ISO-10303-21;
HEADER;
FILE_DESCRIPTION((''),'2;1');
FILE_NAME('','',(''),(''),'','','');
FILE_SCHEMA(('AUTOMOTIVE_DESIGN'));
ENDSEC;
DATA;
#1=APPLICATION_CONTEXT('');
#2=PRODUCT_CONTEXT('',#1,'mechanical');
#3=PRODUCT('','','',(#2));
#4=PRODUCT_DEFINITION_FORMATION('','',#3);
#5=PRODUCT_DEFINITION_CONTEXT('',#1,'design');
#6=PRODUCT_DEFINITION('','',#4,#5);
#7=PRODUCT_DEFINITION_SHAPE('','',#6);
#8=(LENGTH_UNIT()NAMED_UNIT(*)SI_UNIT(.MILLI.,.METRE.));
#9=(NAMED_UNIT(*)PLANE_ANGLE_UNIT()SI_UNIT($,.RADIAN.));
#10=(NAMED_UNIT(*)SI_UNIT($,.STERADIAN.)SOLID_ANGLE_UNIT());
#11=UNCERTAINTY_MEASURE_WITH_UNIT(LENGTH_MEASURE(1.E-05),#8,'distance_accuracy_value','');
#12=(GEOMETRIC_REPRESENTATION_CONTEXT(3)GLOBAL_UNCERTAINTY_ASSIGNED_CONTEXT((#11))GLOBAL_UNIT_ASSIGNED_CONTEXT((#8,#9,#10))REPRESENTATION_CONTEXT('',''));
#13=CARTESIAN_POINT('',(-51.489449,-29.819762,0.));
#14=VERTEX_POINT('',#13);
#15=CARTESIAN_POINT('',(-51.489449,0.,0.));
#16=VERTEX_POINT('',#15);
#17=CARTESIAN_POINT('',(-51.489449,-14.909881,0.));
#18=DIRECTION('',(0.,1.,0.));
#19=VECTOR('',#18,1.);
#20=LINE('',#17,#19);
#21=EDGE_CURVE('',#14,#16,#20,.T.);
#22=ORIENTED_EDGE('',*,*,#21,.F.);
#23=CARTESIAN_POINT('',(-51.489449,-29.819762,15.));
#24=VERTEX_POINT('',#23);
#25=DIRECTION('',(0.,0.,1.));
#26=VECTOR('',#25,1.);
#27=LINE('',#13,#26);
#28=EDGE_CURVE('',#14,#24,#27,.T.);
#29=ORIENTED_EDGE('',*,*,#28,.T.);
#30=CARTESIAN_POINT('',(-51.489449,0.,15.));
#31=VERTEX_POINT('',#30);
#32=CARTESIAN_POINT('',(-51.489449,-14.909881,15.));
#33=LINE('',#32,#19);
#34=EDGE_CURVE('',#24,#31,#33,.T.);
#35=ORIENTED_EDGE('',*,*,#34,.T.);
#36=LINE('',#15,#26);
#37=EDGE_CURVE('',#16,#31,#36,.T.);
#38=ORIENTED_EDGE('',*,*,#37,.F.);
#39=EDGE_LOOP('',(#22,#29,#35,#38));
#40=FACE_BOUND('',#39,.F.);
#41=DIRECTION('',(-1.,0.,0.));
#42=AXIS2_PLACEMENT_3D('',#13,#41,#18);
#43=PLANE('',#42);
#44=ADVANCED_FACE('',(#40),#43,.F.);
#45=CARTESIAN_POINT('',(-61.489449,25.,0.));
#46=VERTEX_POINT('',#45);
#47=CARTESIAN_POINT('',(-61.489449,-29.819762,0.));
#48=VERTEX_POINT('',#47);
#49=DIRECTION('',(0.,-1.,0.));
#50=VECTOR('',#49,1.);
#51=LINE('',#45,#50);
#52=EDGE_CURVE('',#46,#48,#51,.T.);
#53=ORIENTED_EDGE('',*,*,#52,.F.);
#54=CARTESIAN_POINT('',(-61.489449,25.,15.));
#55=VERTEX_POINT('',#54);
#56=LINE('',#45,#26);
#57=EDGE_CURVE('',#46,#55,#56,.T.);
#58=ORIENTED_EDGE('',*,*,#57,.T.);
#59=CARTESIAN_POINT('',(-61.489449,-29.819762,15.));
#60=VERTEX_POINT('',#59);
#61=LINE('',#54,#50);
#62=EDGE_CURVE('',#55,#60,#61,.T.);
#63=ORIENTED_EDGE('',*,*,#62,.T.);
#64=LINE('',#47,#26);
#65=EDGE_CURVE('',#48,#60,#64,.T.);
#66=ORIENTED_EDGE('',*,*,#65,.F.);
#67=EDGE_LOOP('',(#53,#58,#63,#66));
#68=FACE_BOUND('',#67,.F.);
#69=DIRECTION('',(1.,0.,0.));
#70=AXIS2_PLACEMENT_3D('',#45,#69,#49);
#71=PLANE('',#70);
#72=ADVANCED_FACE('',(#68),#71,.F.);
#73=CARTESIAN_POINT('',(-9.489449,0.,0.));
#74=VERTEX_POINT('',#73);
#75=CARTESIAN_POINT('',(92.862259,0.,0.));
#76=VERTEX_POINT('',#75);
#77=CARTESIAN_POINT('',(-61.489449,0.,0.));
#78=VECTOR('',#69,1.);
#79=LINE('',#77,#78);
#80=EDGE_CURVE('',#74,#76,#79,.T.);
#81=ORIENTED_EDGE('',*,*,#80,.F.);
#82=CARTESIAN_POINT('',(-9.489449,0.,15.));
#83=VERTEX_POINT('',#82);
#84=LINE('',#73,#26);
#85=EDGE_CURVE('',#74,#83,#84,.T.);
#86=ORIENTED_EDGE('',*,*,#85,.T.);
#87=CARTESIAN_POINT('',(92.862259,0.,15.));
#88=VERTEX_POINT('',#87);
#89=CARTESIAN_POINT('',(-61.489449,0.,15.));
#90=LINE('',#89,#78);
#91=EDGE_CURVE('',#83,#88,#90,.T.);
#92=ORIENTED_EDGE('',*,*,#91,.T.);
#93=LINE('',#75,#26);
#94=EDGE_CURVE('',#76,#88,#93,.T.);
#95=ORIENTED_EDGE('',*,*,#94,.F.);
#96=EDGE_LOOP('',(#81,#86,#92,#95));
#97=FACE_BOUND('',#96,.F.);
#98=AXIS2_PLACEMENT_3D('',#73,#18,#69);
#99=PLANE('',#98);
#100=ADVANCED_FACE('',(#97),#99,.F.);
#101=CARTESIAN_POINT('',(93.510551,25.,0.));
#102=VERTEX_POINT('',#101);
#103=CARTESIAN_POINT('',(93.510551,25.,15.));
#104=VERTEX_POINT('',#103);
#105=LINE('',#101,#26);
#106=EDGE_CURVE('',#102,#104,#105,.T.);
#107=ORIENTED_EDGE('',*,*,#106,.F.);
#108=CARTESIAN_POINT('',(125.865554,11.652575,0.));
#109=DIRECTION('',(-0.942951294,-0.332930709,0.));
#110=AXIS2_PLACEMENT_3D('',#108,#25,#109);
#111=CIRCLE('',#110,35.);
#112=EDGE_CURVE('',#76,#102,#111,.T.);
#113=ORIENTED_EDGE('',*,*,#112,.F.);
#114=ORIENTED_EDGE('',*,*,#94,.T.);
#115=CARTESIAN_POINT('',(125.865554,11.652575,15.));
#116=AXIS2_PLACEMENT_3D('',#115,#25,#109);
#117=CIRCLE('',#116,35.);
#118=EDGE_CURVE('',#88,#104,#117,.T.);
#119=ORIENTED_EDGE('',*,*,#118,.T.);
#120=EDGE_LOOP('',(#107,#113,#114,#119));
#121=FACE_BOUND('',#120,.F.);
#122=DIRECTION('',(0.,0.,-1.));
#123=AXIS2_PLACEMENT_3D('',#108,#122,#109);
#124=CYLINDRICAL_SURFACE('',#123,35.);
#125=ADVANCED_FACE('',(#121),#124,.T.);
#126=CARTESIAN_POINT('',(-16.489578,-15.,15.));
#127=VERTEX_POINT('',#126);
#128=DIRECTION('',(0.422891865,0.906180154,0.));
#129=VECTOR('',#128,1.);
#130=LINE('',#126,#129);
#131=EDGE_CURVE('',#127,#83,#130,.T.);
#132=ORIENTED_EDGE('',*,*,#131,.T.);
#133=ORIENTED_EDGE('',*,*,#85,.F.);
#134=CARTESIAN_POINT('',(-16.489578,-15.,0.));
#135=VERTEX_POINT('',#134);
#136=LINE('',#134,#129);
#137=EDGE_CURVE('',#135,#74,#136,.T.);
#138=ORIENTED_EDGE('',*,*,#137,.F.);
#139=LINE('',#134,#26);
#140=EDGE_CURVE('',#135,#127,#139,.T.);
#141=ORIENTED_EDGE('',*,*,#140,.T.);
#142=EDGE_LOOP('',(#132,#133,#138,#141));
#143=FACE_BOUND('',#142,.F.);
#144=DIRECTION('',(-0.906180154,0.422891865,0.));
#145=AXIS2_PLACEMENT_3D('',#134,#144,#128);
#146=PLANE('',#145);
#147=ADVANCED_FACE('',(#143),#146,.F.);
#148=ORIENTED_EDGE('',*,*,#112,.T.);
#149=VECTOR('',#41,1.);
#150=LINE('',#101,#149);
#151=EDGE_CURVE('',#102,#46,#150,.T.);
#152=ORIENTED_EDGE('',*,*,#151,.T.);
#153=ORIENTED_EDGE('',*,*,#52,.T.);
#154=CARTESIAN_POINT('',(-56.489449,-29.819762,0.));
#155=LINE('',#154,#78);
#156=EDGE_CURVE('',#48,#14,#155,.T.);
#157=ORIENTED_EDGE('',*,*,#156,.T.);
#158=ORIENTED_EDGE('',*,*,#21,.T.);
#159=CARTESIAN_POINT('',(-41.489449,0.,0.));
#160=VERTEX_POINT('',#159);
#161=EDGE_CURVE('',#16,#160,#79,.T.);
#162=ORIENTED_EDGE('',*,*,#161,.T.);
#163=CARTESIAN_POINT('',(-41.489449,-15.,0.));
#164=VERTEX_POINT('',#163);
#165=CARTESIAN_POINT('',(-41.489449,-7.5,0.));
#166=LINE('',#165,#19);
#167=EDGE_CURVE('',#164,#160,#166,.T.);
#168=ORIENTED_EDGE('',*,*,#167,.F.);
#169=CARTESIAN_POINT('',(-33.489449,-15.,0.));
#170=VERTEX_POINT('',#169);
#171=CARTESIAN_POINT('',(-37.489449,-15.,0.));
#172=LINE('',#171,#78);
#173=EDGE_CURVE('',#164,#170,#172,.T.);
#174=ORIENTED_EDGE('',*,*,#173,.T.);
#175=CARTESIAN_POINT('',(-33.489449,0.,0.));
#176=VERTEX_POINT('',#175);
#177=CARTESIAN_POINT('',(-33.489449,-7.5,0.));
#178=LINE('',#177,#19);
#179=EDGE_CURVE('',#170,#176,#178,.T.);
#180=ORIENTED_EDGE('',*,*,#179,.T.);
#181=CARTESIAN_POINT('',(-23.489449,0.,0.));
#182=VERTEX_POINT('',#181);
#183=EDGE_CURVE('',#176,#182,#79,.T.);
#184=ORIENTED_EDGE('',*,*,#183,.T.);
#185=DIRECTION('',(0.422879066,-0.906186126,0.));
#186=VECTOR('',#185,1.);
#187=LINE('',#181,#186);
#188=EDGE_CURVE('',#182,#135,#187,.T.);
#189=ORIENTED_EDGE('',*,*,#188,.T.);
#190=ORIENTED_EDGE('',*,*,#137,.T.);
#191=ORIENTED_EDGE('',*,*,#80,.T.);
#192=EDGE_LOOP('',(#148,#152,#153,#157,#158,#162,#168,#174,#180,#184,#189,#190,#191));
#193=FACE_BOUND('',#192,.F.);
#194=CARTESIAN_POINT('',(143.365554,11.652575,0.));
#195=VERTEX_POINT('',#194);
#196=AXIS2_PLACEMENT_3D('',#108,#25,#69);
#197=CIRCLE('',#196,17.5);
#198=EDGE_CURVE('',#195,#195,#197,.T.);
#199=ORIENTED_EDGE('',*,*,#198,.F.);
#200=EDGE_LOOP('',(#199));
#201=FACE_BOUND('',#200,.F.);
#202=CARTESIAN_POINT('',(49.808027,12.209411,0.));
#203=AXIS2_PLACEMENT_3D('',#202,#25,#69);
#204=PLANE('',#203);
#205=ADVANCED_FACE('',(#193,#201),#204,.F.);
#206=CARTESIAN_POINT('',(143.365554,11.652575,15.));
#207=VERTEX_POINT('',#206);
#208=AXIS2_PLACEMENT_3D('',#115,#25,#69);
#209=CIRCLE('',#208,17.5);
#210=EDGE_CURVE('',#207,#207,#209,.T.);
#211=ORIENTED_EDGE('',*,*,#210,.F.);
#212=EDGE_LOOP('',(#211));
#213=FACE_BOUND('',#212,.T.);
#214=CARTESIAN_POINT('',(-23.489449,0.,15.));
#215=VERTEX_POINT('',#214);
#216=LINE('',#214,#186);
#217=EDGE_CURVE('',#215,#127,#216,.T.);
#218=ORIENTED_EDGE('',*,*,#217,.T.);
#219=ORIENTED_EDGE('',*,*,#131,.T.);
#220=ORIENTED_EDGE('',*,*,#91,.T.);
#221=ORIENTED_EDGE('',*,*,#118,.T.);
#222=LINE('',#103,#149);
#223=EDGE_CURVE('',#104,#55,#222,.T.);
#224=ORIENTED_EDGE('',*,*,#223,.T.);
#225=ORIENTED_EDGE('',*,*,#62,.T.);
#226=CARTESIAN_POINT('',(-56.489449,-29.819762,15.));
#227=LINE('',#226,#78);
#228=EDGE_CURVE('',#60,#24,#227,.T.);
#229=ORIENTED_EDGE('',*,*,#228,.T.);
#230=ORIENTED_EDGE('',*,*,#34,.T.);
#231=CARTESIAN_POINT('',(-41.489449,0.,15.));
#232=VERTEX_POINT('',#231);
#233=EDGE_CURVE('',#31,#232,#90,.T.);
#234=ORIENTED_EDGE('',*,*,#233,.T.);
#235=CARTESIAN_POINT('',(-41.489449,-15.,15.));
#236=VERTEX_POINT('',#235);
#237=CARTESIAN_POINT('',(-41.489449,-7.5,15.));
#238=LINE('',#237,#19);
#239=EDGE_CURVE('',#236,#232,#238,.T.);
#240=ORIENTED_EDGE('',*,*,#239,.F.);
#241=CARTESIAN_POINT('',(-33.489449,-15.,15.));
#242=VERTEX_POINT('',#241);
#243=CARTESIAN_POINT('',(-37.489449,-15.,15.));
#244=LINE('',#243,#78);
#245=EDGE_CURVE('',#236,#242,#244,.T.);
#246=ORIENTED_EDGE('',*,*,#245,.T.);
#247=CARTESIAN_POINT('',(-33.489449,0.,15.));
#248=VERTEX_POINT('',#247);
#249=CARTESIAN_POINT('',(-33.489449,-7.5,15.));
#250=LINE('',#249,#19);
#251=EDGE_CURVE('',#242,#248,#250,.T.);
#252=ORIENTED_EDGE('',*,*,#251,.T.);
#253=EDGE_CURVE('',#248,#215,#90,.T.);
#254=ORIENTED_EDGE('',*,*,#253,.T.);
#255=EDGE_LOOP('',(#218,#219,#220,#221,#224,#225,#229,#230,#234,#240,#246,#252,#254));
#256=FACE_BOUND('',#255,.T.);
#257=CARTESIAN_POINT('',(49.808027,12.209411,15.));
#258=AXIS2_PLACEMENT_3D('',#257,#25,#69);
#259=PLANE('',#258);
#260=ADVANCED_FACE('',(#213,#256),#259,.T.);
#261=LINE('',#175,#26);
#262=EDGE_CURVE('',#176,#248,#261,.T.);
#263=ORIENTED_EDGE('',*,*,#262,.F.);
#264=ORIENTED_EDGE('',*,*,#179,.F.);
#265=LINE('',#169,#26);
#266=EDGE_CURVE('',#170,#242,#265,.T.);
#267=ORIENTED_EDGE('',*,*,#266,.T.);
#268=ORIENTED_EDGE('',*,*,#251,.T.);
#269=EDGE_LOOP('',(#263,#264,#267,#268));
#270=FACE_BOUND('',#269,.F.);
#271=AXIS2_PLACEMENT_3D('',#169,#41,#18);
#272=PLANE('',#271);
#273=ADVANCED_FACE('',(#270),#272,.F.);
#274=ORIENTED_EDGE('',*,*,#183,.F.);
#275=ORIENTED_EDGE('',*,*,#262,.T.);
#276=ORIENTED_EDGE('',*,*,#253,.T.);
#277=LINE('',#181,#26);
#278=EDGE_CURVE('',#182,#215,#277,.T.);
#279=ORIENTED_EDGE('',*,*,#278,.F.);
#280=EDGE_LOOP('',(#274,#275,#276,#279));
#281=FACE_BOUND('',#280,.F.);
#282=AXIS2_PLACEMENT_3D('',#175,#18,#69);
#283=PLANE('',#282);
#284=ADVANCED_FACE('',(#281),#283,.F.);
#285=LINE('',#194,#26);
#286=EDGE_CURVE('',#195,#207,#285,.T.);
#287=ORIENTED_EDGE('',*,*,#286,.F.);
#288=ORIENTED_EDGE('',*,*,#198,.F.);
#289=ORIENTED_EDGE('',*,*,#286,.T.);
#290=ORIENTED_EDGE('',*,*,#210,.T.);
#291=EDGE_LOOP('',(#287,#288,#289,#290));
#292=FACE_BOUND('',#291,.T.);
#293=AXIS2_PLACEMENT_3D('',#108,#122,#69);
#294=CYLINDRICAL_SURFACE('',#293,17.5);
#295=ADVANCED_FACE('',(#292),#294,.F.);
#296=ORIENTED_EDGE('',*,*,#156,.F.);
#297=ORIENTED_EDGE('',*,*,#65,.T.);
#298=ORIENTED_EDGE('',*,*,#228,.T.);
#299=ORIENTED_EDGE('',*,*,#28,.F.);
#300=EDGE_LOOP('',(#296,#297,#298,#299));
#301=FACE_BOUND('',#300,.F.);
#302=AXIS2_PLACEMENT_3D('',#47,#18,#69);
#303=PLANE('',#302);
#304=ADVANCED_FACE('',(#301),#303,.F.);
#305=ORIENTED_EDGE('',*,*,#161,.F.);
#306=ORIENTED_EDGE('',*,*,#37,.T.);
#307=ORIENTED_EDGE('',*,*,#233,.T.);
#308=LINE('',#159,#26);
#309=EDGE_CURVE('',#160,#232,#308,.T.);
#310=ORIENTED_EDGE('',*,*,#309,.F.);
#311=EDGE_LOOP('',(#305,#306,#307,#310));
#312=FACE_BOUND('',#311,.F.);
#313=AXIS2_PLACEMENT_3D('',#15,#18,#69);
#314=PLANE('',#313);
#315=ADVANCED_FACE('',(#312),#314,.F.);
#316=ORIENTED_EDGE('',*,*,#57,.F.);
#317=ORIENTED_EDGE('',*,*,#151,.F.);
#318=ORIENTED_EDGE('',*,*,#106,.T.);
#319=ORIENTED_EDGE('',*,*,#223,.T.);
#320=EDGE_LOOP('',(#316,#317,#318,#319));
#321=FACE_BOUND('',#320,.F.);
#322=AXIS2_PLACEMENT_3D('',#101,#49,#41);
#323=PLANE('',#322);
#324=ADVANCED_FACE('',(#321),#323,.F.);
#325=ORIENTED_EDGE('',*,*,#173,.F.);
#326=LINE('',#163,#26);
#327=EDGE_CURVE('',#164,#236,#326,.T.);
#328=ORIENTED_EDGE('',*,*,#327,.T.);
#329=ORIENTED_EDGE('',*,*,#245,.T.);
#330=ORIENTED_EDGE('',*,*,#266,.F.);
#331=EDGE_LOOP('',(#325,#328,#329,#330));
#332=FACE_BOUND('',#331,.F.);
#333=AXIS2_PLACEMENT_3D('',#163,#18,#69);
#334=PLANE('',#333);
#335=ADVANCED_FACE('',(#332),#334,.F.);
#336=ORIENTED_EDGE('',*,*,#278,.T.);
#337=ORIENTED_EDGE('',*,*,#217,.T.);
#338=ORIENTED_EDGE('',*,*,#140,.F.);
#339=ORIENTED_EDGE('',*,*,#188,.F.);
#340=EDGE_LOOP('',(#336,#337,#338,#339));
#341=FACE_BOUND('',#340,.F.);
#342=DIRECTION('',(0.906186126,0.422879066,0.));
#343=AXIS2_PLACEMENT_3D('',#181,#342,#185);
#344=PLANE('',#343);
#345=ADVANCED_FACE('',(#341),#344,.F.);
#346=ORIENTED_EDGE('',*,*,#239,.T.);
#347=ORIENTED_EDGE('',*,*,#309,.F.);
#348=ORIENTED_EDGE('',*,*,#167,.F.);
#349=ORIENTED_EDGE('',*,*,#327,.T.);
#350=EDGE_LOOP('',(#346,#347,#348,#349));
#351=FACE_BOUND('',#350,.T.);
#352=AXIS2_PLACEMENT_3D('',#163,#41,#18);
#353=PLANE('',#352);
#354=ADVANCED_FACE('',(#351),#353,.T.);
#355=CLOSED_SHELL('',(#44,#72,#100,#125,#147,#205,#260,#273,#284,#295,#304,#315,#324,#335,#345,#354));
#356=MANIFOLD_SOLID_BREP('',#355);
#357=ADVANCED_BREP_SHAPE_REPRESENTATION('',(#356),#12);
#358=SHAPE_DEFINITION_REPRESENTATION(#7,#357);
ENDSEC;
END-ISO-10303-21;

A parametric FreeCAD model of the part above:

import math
import FreeCAD as App
import Part
import Sketcher

V = App.Vector
Q = App.Units.Quantity

doc = App.newDocument("Part")
body = doc.addObject("PartDesign::Body", "Body")

# Sketch on XY plane
sketch1 = body.newObject("Sketcher::SketchObject", "Sketch")
sketch1.AttachmentSupport = (doc.getObject("XY_Plane"), [""])
sketch1.MapMode = "FlatFace"
sketch1.addGeometry(Part.LineSegment(V(94, 25, 0), V(-61, 25, 0)), False)
sketch1.addGeometry(Part.LineSegment(V(-61, 25, 0), V(-61, -30, 0)), False)
sketch1.addGeometry(Part.LineSegment(V(-61, -30, 0), V(-51, -30, 0)), False)
sketch1.addGeometry(Part.LineSegment(V(-51, -30, 0), V(-51, 0, 0)), False)
sketch1.addGeometry(Part.LineSegment(V(-51, 0, 0), V(-41, 0, 0)), False)
sketch1.addGeometry(Part.LineSegment(V(-41, 0, 0), V(-41, -15, 0)), False)
sketch1.addGeometry(Part.LineSegment(V(-41, -15, 0), V(-33, -15, 0)), False)
sketch1.addGeometry(Part.LineSegment(V(-33, -15, 0), V(-33, 0, 0)), False)
sketch1.addGeometry(Part.LineSegment(V(-33, 0, 0), V(-23, 0, 0)), False)
sketch1.addGeometry(Part.LineSegment(V(-23, 0, 0), V(-16, -15, 0)), False)
sketch1.addGeometry(Part.LineSegment(V(-16, -15, 0), V(-9, 0, 0)), False)
sketch1.addGeometry(Part.LineSegment(V(-9, 0, 0), V(93, 0, 0)), False)
sketch1.addGeometry(Part.ArcOfCircle(Part.Circle(V(126, 12, 0), V(0, 0, 1), 35), math.radians(-161), math.radians(158)), False)
sketch1.addGeometry(Part.Circle(V(126, 12, 0), V(0, 0, 1), 18), False)
sketch1.addConstraint(Sketcher.Constraint("Coincident", 0, 2, 1, 1))
sketch1.addConstraint(Sketcher.Constraint("Coincident", 1, 2, 2, 1))
sketch1.addConstraint(Sketcher.Constraint("Coincident", 2, 2, 3, 1))
sketch1.addConstraint(Sketcher.Constraint("Coincident", 3, 2, 4, 1))
sketch1.addConstraint(Sketcher.Constraint("Coincident", 4, 2, 5, 1))
sketch1.addConstraint(Sketcher.Constraint("Coincident", 5, 2, 6, 1))
sketch1.addConstraint(Sketcher.Constraint("Coincident", 6, 2, 7, 1))
sketch1.addConstraint(Sketcher.Constraint("Coincident", 7, 2, 8, 1))
sketch1.addConstraint(Sketcher.Constraint("Coincident", 8, 2, 9, 1))
sketch1.addConstraint(Sketcher.Constraint("Coincident", 9, 2, 10, 1))
sketch1.addConstraint(Sketcher.Constraint("Coincident", 10, 2, 11, 1))
sketch1.addConstraint(Sketcher.Constraint("Coincident", 11, 2, 12, 1))
sketch1.addConstraint(Sketcher.Constraint("Coincident", 12, 2, 0, 1))
sketch1.addConstraint(Sketcher.Constraint("Horizontal", 0))
sketch1.addConstraint(Sketcher.Constraint("Vertical", 1))
sketch1.addConstraint(Sketcher.Constraint("Horizontal", 2))
sketch1.addConstraint(Sketcher.Constraint("Vertical", 3))
sketch1.addConstraint(Sketcher.Constraint("Horizontal", 4))
sketch1.addConstraint(Sketcher.Constraint("Vertical", 5))
sketch1.addConstraint(Sketcher.Constraint("Horizontal", 6))
sketch1.addConstraint(Sketcher.Constraint("Vertical", 7))
sketch1.addConstraint(Sketcher.Constraint("Horizontal", 8))
sketch1.addConstraint(Sketcher.Constraint("Horizontal", 11))
sketch1.addConstraint(Sketcher.Constraint("Coincident", 13, 3, 12, 3))
sketch1.addConstraint(Sketcher.Constraint("PointOnObject", 3, 2, -1))
sketch1.addConstraint(Sketcher.Constraint("PointOnObject", 7, 2, -1))
sketch1.addConstraint(Sketcher.Constraint("PointOnObject", 10, 2, -1))
sketch1.addConstraint(Sketcher.Constraint("Horizontal", 6, 2, 9, 2))
sketch1.addConstraint(Sketcher.Constraint("Equal", 2, 4))
sketch1.addConstraint(Sketcher.Constraint("Equal", 4, 8))
sketch1.addConstraint(Sketcher.Constraint("Diameter", 13, Q("35 mm")))
sketch1.addConstraint(Sketcher.Constraint("Radius", 12, Q("35 mm")))
sketch1.addConstraint(Sketcher.Constraint("DistanceX", 0, 2, 0, 1, Q("155 mm")))
sketch1.addConstraint(Sketcher.Constraint("DistanceX", 2, 1, 2, 2, Q("10 mm")))
sketch1.addConstraint(Sketcher.Constraint("DistanceX", 6, 1, 6, 2, Q("8 mm")))
sketch1.addConstraint(Sketcher.Constraint("DistanceY", 5, 2, 5, 1, Q("15 mm")))
sketch1.addConstraint(Sketcher.Constraint("DistanceY", -1, 1, 0, 2, Q("25 mm")))
sketch1.addConstraint(Sketcher.Constraint("DistanceX", 8, 2, 10, 2, Q("14 mm")))
sketch1.addConstraint(Sketcher.Constraint("Distance", 10, Q("16.553 mm")))
sketch1.addConstraint(Sketcher.Constraint("DistanceX", 11, 1, 11, 2, Q("102.351708 mm")))
sketch1.addConstraint(Sketcher.Constraint("DistanceY", 1, 2, 1, 1, Q("54.819762 mm")))
sketch1.addConstraint(Sketcher.Constraint("DistanceX", 0, 2, -1, 1, Q("61.489449 mm")))
pad1 = body.newObject("PartDesign::Pad", "Pad")
pad1.Profile = sketch1
pad1.Length = 15

doc.recompute()
